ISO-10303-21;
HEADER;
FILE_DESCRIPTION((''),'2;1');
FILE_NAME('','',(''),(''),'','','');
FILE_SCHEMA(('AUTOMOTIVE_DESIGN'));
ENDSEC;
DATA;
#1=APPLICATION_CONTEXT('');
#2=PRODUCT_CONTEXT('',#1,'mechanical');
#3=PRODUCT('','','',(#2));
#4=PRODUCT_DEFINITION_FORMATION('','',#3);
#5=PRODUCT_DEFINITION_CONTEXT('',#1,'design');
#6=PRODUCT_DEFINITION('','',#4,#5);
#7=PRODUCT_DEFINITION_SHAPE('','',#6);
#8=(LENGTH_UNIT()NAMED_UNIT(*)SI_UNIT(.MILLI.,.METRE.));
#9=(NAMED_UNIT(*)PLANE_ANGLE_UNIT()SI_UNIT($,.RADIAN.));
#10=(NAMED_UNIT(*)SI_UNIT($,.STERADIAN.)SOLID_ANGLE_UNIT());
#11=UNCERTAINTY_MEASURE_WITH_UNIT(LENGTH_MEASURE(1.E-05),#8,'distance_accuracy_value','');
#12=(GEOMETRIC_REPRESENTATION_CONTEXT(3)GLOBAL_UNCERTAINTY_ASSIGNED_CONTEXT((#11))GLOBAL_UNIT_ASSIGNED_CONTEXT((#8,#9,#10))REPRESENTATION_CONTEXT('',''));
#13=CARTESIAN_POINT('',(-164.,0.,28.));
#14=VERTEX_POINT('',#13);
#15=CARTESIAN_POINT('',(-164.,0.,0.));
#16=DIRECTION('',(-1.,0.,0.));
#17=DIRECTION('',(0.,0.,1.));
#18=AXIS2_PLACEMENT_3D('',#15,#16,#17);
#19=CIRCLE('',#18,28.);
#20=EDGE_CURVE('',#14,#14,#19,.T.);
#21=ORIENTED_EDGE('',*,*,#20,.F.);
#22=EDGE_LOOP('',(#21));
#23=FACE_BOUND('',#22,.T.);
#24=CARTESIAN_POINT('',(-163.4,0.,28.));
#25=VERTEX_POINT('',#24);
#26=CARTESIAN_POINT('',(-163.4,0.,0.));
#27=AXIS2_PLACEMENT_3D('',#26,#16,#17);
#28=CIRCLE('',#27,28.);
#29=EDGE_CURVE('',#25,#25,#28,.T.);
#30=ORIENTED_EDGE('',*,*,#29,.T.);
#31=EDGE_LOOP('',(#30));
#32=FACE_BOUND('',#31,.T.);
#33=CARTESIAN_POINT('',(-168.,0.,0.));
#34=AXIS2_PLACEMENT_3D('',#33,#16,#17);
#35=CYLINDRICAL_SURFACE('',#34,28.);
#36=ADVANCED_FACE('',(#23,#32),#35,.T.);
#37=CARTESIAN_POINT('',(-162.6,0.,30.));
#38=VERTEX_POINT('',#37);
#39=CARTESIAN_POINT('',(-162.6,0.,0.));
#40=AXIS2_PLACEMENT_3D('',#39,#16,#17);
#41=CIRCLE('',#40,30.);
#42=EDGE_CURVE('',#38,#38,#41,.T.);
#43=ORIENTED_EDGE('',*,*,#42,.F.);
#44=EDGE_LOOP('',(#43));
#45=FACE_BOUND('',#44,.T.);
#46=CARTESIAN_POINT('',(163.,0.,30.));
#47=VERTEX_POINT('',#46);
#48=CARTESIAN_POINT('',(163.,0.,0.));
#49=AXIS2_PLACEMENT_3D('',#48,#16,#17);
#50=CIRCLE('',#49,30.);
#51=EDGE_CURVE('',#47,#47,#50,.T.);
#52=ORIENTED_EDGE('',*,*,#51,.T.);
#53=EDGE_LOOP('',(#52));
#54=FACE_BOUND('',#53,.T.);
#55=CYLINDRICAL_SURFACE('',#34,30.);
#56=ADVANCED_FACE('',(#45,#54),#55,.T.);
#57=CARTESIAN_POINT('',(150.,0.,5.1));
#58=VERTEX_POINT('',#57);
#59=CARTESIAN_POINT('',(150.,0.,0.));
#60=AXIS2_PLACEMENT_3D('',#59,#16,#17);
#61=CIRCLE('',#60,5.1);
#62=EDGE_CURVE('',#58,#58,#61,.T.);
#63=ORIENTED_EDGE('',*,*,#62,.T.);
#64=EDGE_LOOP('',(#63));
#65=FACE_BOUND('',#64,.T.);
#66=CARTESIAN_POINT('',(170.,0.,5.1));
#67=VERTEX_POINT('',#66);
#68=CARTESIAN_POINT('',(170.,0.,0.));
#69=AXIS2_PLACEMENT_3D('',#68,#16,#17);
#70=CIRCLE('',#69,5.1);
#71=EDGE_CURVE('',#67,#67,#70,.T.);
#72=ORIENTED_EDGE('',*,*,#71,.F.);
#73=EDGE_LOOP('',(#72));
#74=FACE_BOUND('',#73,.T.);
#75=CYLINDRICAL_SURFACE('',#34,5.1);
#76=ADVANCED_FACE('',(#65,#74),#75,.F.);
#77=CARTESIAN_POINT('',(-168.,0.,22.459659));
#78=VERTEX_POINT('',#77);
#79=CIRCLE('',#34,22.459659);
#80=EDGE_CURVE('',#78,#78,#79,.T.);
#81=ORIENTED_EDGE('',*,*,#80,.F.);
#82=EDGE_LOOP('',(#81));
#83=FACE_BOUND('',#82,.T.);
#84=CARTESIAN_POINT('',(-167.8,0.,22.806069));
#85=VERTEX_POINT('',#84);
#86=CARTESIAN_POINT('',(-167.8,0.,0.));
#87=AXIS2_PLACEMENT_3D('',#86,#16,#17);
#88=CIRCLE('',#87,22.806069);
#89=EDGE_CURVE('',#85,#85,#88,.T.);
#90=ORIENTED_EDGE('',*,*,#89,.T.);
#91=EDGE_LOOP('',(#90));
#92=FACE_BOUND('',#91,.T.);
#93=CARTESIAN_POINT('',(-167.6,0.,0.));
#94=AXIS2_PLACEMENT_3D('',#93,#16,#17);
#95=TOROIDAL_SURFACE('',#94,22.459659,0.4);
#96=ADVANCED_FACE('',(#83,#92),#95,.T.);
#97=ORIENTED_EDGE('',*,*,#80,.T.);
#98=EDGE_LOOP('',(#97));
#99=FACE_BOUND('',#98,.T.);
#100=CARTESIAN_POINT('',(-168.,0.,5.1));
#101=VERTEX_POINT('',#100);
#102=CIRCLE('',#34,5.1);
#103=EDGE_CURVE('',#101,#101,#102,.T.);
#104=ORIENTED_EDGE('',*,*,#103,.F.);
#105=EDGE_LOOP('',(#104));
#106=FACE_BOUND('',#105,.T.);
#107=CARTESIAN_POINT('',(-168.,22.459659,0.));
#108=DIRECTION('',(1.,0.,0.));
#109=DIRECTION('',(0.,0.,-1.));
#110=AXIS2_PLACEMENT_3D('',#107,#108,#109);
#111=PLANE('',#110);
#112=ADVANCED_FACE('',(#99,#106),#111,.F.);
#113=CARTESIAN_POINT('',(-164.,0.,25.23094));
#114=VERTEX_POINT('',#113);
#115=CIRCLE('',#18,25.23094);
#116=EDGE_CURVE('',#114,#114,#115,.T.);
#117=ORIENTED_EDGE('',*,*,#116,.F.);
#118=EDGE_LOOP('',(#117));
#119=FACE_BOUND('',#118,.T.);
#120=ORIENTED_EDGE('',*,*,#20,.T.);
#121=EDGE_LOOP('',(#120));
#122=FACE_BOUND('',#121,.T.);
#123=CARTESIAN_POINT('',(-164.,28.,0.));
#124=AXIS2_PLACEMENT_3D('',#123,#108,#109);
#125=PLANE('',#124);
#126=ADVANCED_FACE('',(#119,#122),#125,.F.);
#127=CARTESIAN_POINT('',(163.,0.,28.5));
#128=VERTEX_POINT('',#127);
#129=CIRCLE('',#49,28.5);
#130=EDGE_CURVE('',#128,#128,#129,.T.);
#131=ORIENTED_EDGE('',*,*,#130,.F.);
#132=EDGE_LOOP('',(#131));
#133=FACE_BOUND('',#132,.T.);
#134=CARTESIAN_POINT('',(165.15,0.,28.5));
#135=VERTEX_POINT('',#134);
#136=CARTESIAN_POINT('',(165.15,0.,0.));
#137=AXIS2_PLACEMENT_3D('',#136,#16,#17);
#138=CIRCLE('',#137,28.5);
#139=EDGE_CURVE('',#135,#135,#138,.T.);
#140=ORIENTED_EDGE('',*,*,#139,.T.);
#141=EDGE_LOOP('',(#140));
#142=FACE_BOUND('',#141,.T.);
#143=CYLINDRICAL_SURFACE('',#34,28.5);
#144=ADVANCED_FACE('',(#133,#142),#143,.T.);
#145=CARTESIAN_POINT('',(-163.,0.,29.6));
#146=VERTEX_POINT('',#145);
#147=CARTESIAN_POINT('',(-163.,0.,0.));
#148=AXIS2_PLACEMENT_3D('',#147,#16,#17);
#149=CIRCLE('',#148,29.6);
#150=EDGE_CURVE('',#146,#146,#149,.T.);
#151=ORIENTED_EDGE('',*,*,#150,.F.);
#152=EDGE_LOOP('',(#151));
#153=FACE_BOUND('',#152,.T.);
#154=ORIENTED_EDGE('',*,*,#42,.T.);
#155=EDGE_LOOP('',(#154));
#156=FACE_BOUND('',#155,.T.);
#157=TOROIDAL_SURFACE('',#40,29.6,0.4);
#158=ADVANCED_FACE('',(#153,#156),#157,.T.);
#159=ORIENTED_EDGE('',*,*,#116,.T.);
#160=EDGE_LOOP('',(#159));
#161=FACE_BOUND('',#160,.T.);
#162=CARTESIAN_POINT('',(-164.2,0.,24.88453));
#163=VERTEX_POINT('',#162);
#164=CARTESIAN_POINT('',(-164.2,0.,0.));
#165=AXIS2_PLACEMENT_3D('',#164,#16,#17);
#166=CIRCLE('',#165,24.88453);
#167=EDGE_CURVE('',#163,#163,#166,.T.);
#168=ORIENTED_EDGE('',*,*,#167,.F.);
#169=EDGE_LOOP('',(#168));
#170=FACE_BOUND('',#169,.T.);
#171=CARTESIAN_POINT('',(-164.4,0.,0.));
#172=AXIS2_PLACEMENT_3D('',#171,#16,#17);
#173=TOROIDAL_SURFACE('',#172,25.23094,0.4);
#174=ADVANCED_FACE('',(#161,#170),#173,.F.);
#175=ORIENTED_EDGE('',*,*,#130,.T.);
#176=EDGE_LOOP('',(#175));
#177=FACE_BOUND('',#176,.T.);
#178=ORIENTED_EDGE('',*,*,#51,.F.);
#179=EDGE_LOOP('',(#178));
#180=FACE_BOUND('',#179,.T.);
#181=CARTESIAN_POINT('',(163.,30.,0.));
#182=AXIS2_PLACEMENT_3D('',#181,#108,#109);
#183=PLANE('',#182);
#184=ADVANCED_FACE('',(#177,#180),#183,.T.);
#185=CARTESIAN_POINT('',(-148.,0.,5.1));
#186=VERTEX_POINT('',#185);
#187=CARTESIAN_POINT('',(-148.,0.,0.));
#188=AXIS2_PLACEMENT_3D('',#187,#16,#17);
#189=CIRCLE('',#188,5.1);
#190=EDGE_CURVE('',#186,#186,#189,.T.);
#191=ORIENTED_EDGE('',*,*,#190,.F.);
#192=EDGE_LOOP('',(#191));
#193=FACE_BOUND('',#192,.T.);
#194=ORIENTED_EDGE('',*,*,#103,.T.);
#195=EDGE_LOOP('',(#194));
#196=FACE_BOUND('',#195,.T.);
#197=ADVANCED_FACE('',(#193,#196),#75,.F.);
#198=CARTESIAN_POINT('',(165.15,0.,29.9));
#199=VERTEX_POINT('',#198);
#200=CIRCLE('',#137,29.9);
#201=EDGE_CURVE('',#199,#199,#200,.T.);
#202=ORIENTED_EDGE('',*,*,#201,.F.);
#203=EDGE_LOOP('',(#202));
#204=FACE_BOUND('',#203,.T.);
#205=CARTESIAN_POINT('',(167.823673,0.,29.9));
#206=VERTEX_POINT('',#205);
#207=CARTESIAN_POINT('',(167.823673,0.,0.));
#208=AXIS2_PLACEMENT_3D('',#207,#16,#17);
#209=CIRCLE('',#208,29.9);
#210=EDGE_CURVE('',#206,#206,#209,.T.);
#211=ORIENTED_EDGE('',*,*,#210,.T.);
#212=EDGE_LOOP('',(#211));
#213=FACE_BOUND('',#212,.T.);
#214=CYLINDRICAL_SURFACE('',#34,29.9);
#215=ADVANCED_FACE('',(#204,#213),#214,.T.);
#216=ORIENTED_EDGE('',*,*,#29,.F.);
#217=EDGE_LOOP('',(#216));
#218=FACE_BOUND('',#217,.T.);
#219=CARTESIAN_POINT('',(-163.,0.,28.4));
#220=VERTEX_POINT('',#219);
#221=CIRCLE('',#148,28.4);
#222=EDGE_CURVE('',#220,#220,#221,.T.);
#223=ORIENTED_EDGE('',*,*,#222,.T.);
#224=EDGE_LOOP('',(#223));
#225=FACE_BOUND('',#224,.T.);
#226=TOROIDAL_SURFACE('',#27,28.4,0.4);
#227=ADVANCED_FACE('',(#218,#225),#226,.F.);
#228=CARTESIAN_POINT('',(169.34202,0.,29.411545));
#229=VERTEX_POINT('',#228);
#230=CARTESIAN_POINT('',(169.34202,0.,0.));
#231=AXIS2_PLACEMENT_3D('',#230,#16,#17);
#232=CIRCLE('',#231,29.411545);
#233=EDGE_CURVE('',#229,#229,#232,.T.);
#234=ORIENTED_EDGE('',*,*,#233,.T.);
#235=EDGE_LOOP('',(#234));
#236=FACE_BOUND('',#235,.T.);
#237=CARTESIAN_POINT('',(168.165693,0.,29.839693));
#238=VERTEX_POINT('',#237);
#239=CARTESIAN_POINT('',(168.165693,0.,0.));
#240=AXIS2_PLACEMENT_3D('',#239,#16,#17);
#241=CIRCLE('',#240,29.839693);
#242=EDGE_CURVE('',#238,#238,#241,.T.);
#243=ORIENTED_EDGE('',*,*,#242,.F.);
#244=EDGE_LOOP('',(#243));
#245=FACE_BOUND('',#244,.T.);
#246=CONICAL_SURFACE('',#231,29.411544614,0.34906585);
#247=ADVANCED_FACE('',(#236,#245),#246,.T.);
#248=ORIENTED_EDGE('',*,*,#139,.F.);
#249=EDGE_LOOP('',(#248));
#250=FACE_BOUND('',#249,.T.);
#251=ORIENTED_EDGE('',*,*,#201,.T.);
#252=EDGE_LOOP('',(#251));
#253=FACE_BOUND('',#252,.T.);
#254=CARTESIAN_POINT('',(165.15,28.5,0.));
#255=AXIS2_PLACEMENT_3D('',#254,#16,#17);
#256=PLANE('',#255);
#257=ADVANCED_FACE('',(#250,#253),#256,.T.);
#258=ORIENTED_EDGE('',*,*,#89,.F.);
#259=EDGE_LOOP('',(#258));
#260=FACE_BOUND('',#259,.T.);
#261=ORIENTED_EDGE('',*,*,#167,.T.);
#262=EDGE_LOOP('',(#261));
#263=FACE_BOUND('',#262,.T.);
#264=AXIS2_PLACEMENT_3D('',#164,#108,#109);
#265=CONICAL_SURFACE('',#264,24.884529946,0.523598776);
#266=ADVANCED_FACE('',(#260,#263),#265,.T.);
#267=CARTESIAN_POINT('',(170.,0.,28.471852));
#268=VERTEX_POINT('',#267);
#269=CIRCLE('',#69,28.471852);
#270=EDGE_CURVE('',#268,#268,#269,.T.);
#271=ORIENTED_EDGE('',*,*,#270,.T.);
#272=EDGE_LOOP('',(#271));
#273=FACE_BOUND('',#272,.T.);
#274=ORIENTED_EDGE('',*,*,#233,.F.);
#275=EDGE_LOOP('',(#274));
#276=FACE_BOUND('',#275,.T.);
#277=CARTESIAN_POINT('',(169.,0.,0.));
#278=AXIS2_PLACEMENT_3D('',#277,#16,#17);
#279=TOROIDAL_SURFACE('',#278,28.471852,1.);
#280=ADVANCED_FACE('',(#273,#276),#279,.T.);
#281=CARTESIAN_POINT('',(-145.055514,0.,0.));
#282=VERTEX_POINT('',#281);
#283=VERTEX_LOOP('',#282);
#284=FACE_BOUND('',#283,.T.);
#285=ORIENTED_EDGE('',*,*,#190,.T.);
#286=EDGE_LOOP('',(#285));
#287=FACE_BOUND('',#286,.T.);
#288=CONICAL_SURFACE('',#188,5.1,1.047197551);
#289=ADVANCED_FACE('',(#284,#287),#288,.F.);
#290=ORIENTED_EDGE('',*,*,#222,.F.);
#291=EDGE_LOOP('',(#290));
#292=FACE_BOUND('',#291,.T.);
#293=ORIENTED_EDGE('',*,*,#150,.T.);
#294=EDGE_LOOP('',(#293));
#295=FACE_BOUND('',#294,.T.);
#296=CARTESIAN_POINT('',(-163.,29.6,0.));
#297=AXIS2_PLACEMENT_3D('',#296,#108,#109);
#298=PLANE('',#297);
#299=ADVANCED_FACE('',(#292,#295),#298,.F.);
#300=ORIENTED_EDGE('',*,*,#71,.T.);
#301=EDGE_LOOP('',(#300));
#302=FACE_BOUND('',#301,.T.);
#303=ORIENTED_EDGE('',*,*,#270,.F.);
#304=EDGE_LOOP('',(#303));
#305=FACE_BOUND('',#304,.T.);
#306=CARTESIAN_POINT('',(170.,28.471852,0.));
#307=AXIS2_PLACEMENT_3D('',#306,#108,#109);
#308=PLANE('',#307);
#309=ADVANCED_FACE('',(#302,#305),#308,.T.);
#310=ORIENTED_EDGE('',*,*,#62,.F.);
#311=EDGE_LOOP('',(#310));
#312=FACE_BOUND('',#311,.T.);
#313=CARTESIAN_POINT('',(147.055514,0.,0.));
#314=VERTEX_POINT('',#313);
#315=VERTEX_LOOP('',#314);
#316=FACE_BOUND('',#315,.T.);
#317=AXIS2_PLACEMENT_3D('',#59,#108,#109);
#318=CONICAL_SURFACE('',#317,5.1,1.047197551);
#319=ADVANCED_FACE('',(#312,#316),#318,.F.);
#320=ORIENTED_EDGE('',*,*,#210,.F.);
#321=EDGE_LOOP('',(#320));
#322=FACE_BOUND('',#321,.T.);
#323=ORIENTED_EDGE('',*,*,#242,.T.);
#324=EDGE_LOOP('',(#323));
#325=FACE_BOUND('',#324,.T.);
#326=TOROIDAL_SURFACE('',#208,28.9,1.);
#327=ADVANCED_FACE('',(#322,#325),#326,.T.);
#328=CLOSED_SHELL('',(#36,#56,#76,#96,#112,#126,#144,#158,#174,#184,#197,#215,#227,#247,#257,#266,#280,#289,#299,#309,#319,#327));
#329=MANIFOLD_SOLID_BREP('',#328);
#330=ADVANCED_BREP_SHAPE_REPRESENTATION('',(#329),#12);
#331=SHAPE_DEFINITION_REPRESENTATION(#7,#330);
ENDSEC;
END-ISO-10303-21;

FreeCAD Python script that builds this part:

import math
import FreeCAD as App
import Part
import Sketcher
Q = App.Units.Quantity

doc = App.newDocument("Part")
params = doc.addObject("Spreadsheet::Sheet", "Params")
for row, (alias, value) in enumerate([
    ("sketch1_radius", "1 mm"),
    ("sketch1_radius2", "0.4 mm"),
    ("sketch1_width", "20 mm"),
    ("sketch1_width2", "325.6 mm"),
    ("sketch1_width3", "0.6 mm"),
    ("revolution_angle", "360 deg"),
], start=1):
    params.set(f"A{row}", alias)
    params.set(f"B{row}", "=" + value)
    params.setAlias(f"B{row}", alias)

body = doc.addObject("PartDesign::Body", "Body")

sketch1 = body.newObject("Sketcher::SketchObject", "Sketch")
sketch1.AttachmentSupport = (doc.getObject("XY_Plane"), [""])
sketch1.MapMode = "FlatFace"
sketch1.addGeometry(Part.LineSegment(App.Vector(163, 30, 0), App.Vector(-162.6, 30, 0)), False)
sketch1.addGeometry(Part.ArcOfCircle(Part.Circle(App.Vector(-162.6, 29.6, 0), App.Vector(0, 0, 1), 0.4), math.radians(90), math.radians(180)), False)
sketch1.addGeometry(Part.LineSegment(App.Vector(-163, 29.6, 0), App.Vector(-163, 28.4, 0)), False)
sketch1.addGeometry(Part.ArcOfCircle(Part.Circle(App.Vector(-163.4, 28.4, 0), App.Vector(0, 0, 1), 0.4), math.radians(-90), math.radians(0)), False)
sketch1.addGeometry(Part.LineSegment(App.Vector(-163.4, 28, 0), App.Vector(-164, 28, 0)), False)
sketch1.addGeometry(Part.LineSegment(App.Vector(-164, 28, 0), App.Vector(-164, 25.23, 0)), False)
sketch1.addGeometry(Part.ArcOfCircle(Part.Circle(App.Vector(-164.4, 25.23, 0), App.Vector(0, 0, 1), 0.4), math.radians(-60), math.radians(0)), False)
sketch1.addGeometry(Part.LineSegment(App.Vector(-164.2, 24.88, 0), App.Vector(-167.8, 22.81, 0)), False)
sketch1.addGeometry(Part.ArcOfCircle(Part.Circle(App.Vector(-167.6, 22.46, 0), App.Vector(0, 0, 1), 0.4), math.radians(120), math.radians(180)), False)
sketch1.addGeometry(Part.LineSegment(App.Vector(-168, 22.46, 0), App.Vector(-168, 5.1, 0)), False)
sketch1.addGeometry(Part.LineSegment(App.Vector(-168, 5.1, 0), App.Vector(-148, 5.1, 0)), False)
sketch1.addGeometry(Part.LineSegment(App.Vector(-148, 5.1, 0), App.Vector(-145.06, 0, 0)), False)
sketch1.addGeometry(Part.LineSegment(App.Vector(-145.06, 0, 0), App.Vector(147.06, 0, 0)), False)
sketch1.addGeometry(Part.LineSegment(App.Vector(147.06, 0, 0), App.Vector(150, 5.1, 0)), False)
sketch1.addGeometry(Part.LineSegment(App.Vector(150, 5.1, 0), App.Vector(170, 5.1, 0)), False)
sketch1.addGeometry(Part.LineSegment(App.Vector(170, 5.1, 0), App.Vector(170, 28.47, 0)), False)
sketch1.addGeometry(Part.ArcOfCircle(Part.Circle(App.Vector(169, 28.47, 0), App.Vector(0, 0, 1), 1), math.radians(0), math.radians(70)), False)
sketch1.addGeometry(Part.LineSegment(App.Vector(169.34, 29.41, 0), App.Vector(168.17, 29.84, 0)), False)
sketch1.addGeometry(Part.ArcOfCircle(Part.Circle(App.Vector(167.82, 28.9, 0), App.Vector(0, 0, 1), 1), math.radians(70), math.radians(90)), False)
sketch1.addGeometry(Part.LineSegment(App.Vector(167.82, 29.9, 0), App.Vector(165.15, 29.9, 0)), False)
sketch1.addGeometry(Part.LineSegment(App.Vector(165.15, 29.9, 0), App.Vector(165.15, 28.5, 0)), False)
sketch1.addGeometry(Part.LineSegment(App.Vector(165.15, 28.5, 0), App.Vector(163, 28.5, 0)), False)
sketch1.addGeometry(Part.LineSegment(App.Vector(163, 28.5, 0), App.Vector(163, 30, 0)), False)
sketch1.addConstraint(Sketcher.Constraint("Tangent", 0, 2, 1, 1))
sketch1.addConstraint(Sketcher.Constraint("Tangent", 1, 2, 2, 1))
sketch1.addConstraint(Sketcher.Constraint("Tangent", 2, 2, 3, 2))
sketch1.addConstraint(Sketcher.Constraint("Tangent", 3, 1, 4, 1))
sketch1.addConstraint(Sketcher.Constraint("Coincident", 4, 2, 5, 1))
sketch1.addConstraint(Sketcher.Constraint("Tangent", 5, 2, 6, 2))
sketch1.addConstraint(Sketcher.Constraint("Tangent", 6, 1, 7, 1))
sketch1.addConstraint(Sketcher.Constraint("Tangent", 7, 2, 8, 1))
sketch1.addConstraint(Sketcher.Constraint("Tangent", 8, 2, 9, 1))
sketch1.addConstraint(Sketcher.Constraint("Coincident", 9, 2, 10, 1))
sketch1.addConstraint(Sketcher.Constraint("Coincident", 10, 2, 11, 1))
sketch1.addConstraint(Sketcher.Constraint("Coincident", 11, 2, 12, 1))
sketch1.addConstraint(Sketcher.Constraint("Coincident", 12, 2, 13, 1))
sketch1.addConstraint(Sketcher.Constraint("Coincident", 13, 2, 14, 1))
sketch1.addConstraint(Sketcher.Constraint("Coincident", 14, 2, 15, 1))
sketch1.addConstraint(Sketcher.Constraint("Tangent", 15, 2, 16, 1))
sketch1.addConstraint(Sketcher.Constraint("Tangent", 16, 2, 17, 1))
sketch1.addConstraint(Sketcher.Constraint("Tangent", 17, 2, 18, 1))
sketch1.addConstraint(Sketcher.Constraint("Tangent", 18, 2, 19, 1))
sketch1.addConstraint(Sketcher.Constraint("Coincident", 19, 2, 20, 1))
sketch1.addConstraint(Sketcher.Constraint("Coincident", 20, 2, 21, 1))
sketch1.addConstraint(Sketcher.Constraint("Coincident", 21, 2, 22, 1))
sketch1.addConstraint(Sketcher.Constraint("Coincident", 22, 2, 0, 1))
sketch1.addConstraint(Sketcher.Constraint("Horizontal", 0))
sketch1.addConstraint(Sketcher.Constraint("Vertical", 2))
sketch1.addConstraint(Sketcher.Constraint("Horizontal", 4))
sketch1.addConstraint(Sketcher.Constraint("Vertical", 5))
sketch1.addConstraint(Sketcher.Constraint("Vertical", 9))
sketch1.addConstraint(Sketcher.Constraint("Horizontal", 10))
sketch1.addConstraint(Sketcher.Constraint("Horizontal", 12))
sketch1.addConstraint(Sketcher.Constraint("Horizontal", 14))
sketch1.addConstraint(Sketcher.Constraint("Vertical", 15))
sketch1.addConstraint(Sketcher.Constraint("Horizontal", 19))
sketch1.addConstraint(Sketcher.Constraint("Vertical", 20))
sketch1.addConstraint(Sketcher.Constraint("Horizontal", 21))
sketch1.addConstraint(Sketcher.Constraint("Vertical", 22))
sketch1.addConstraint(Sketcher.Constraint("Equal", 1, 3))
sketch1.addConstraint(Sketcher.Constraint("Equal", 3, 6))
sketch1.addConstraint(Sketcher.Constraint("Equal", 6, 8))
sketch1.addConstraint(Sketcher.Constraint("Equal", 16, 18))
sketch1.addConstraint(Sketcher.Constraint("PointOnObject", 11, 2, -1))
sketch1.addConstraint(Sketcher.Constraint("Perpendicular", 7, 11))
sketch1.addConstraint(Sketcher.Constraint("Horizontal", 10, 2, 13, 2))
sketch1.addConstraint(Sketcher.Constraint("Equal", 10, 14))
sketch1.addConstraint(Sketcher.Constraint("Equal", 11, 13))
sketch1.addConstraint(Sketcher.Constraint("Radius", 16, 1.0))
sketch1.addConstraint(Sketcher.Constraint("Radius", 1, 0.4))
sketch1.addConstraint(Sketcher.Constraint("DistanceX", 10, 1, 10, 2, 20.0))
sketch1.addConstraint(Sketcher.Constraint("Angle", 7, Q("-150 deg")))
sketch1.addConstraint(Sketcher.Constraint("Angle", 17, Q("160 deg")))
sketch1.addConstraint(Sketcher.Constraint("DistanceX", 0, 2, 0, 1, 325.6))
sketch1.addConstraint(Sketcher.Constraint("DistanceX", 4, 2, 4, 1, 0.6))
sketch1.addConstraint(Sketcher.Constraint("DistanceY", 2, 2, 2, 1, 1.2))
sketch1.addConstraint(Sketcher.Constraint("DistanceY", 20, 2, 20, 1, 1.4))
sketch1.addConstraint(Sketcher.Constraint("DistanceY", 22, 1, 22, 2, 1.5))
sketch1.addConstraint(Sketcher.Constraint("DistanceX", -1, 1, 16, 3, 169.0))
sketch1.addConstraint(Sketcher.Constraint("DistanceY", -1, 1, 0, 2, 30.0))
sketch1.addConstraint(Sketcher.Constraint("DistanceX", 1, 2, -1, 1, 163.0))
sketch1.addConstraint(Sketcher.Constraint("DistanceX", 8, 2, -1, 1, 168.0))
sketch1.addConstraint(Sketcher.Constraint("DistanceX", 21, 2, 21, 1, 2.15))
sketch1.addConstraint(Sketcher.Constraint("DistanceY", -1, 1, 9, 2, 5.1))
sketch1.addConstraint(Sketcher.Constraint("DistanceY", 5, 2, 5, 1, 2.76906))
sketch1.addConstraint(Sketcher.Constraint("DistanceY", 15, 1, 15, 2, 23.371852))
sketch1.setExpression("Constraints[45]", "Params.sketch1_radius")
sketch1.setExpression("Constraints[46]", "Params.sketch1_radius2")
sketch1.setExpression("Constraints[47]", "Params.sketch1_width")
sketch1.setExpression("Constraints[50]", "Params.sketch1_width2")
sketch1.setExpression("Constraints[51]", "Params.sketch1_width3")
revolution = body.newObject("PartDesign::Revolution", "Revolution")
revolution.Profile = sketch1
revolution.ReferenceAxis = (sketch1, ["H_Axis"])
revolution.setExpression("Angle", "Params.revolution_angle")

doc.recompute()
